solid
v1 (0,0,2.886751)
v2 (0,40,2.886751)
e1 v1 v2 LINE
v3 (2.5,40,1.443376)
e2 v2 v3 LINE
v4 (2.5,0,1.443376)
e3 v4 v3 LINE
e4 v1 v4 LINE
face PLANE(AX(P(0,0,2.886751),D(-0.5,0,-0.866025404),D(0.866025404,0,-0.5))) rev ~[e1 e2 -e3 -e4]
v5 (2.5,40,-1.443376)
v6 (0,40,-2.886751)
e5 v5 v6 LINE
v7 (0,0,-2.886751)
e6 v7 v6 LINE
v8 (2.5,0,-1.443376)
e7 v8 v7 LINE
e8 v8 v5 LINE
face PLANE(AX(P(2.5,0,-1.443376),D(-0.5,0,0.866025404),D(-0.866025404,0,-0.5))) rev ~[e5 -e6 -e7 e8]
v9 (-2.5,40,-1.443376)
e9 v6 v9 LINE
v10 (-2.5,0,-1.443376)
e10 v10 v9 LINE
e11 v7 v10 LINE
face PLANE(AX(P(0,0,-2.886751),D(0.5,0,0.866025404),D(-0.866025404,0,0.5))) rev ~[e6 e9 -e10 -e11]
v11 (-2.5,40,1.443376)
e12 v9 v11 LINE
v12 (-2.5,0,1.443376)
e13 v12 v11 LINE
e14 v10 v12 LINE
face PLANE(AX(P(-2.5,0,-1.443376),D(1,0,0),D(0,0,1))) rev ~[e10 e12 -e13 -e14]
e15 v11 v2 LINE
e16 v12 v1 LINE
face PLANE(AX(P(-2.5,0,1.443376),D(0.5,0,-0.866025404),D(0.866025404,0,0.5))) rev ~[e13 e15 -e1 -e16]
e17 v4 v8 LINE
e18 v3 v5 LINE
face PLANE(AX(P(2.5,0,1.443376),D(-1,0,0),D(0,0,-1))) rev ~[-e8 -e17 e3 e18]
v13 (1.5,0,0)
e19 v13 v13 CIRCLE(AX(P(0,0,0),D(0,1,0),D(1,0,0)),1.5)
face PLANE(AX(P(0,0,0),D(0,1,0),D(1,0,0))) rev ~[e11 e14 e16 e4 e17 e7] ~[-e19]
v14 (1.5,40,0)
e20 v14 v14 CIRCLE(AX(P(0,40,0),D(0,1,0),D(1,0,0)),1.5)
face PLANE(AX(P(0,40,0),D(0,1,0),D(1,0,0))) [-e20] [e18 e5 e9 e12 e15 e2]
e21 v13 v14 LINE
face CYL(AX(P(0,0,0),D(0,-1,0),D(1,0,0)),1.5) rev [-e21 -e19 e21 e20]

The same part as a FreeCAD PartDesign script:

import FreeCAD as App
import Part
import Sketcher

V = App.Vector
Q = App.Units.Quantity

doc = App.newDocument("Part")
body = doc.addObject("PartDesign::Body", "Body")

# Sketch on XZ plane
sketch1 = doc.addObject("Sketcher::SketchObject", "Sketch")
body.addObject(sketch1)
sketch1.AttachmentSupport = (doc.XZ_Plane, [""])
sketch1.MapMode = "FlatFace"
sketch1.addGeometry([
    Part.LineSegment(V(0, -2.9, 0), V(-2.5, -1.4, 0)),  # 0
    Part.LineSegment(V(-2.5, -1.4, 0), V(-2.5, 1.4, 0)),  # 1
    Part.LineSegment(V(-2.5, 1.4, 0), V(0, 2.9, 0)),  # 2
    Part.LineSegment(V(0, 2.9, 0), V(2.5, 1.4, 0)),  # 3
    Part.LineSegment(V(2.5, 1.4, 0), V(2.5, -1.4, 0)),  # 4
    Part.LineSegment(V(2.5, -1.4, 0), V(0, -2.9, 0)),  # 5
    Part.Circle(V(0, 0, 0), V(0, 0, 1), 1.5),  # 6
], False)
sketch1.addConstraint([
    Sketcher.Constraint("Coincident", 0, 2, 1, 1),
    Sketcher.Constraint("Coincident", 1, 2, 2, 1),
    Sketcher.Constraint("Coincident", 2, 2, 3, 1),
    Sketcher.Constraint("Coincident", 3, 2, 4, 1),
    Sketcher.Constraint("Coincident", 4, 2, 5, 1),
    Sketcher.Constraint("Coincident", 5, 2, 0, 1),
    Sketcher.Constraint("Vertical", 1),
    Sketcher.Constraint("Vertical", 4),
    Sketcher.Constraint("Coincident", 6, 3, -1, 1),
    Sketcher.Constraint("Symmetric", 0, 2, 3, 2, -1, 1),
    Sketcher.Constraint("Symmetric", 2, 2, 5, 2, -1, 1),
    Sketcher.Constraint("PointOnObject", 2, 2, -2),
    Sketcher.Constraint("Parallel", 2, 5),
    Sketcher.Constraint("Horizontal", 1, 2, 3, 2),
    Sketcher.Constraint("Diameter", 6, Q("3 mm")),
    Sketcher.Constraint("Angle", 0, Q("150 deg")),
    Sketcher.Constraint("DistanceX", 1, 2, 3, 2, Q("5 mm")),
    Sketcher.Constraint("DistanceY", 1, 1, 1, 2, Q("2.886751 mm")),
])
pad1 = doc.addObject("PartDesign::Pad", "Pad")
body.addObject(pad1)
pad1.Profile = sketch1
pad1.Length = 40
pad1.Reversed = True

doc.recompute()
